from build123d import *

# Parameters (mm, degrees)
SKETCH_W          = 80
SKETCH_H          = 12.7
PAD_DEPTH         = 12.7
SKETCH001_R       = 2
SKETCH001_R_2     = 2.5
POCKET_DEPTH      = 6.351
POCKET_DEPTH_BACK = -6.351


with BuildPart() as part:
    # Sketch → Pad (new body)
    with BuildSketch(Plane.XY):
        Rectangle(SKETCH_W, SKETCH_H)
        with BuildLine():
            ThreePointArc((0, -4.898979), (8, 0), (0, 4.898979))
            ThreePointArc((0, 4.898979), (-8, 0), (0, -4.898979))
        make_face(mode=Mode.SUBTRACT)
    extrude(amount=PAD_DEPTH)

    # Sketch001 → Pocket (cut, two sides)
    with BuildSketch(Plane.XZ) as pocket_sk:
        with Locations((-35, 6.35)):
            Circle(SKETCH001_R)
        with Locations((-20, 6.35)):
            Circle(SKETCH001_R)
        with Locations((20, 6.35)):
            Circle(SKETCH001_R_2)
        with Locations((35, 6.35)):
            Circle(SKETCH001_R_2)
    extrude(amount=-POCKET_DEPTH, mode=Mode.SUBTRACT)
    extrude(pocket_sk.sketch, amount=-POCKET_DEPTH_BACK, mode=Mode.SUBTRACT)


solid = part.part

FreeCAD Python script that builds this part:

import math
import FreeCAD as App
import Part
import Sketcher

V = App.Vector

doc = App.newDocument("Part")
body = doc.addObject("PartDesign::Body", "Body")

# Sketch on XY plane
sketch1 = body.newObject("Sketcher::SketchObject", "Sketch")
sketch1.AttachmentSupport = (doc.getObject("XY_Plane"), [""])
sketch1.MapMode = "FlatFace"
sketch1.addGeometry(Part.LineSegment(V(-40, 6, 0), V(-40, -6, 0)), False)
sketch1.addGeometry(Part.LineSegment(V(-40, -6, 0), V(40, -6, 0)), False)
sketch1.addGeometry(Part.LineSegment(V(40, -6, 0), V(40, 6, 0)), False)
sketch1.addGeometry(Part.LineSegment(V(40, 6, 0), V(-40, 6, 0)), False)
sketch1.addGeometry(Part.ArcOfCircle(Part.Circle(V(3, 0, 0), V(0, 0, 1), 5), math.radians(-117), math.radians(117)), False)
sketch1.addGeometry(Part.ArcOfCircle(Part.Circle(V(-3, 0, 0), V(0, 0, 1), 5), math.radians(63), math.radians(297)), False)
sketch1.addConstraint(Sketcher.Constraint("Coincident", 0, 2, 1, 1))
sketch1.addConstraint(Sketcher.Constraint("Coincident", 1, 2, 2, 1))
sketch1.addConstraint(Sketcher.Constraint("Coincident", 2, 2, 3, 1))
sketch1.addConstraint(Sketcher.Constraint("Coincident", 3, 2, 0, 1))
sketch1.addConstraint(Sketcher.Constraint("Coincident", 4, 1, 5, 2))
sketch1.addConstraint(Sketcher.Constraint("Coincident", 5, 1, 4, 2))
sketch1.addConstraint(Sketcher.Constraint("Vertical", 0))
sketch1.addConstraint(Sketcher.Constraint("Horizontal", 1))
sketch1.addConstraint(Sketcher.Constraint("Vertical", 2))
sketch1.addConstraint(Sketcher.Constraint("Horizontal", 3))
sketch1.addConstraint(Sketcher.Constraint("Equal", 4, 5))
sketch1.addConstraint(Sketcher.Constraint("Symmetric", 4, 3, 5, 3, -1, 1))
sketch1.addConstraint(Sketcher.Constraint("Symmetric", 0, 2, 2, 2, -1, 1))
sketch1.addConstraint(Sketcher.Constraint("PointOnObject", 4, 3, -1))
sketch1.addConstraint(Sketcher.Constraint("Radius", 4, 5.5))
sketch1.addConstraint(Sketcher.Constraint("DistanceX", 1, 1, 1, 2, 80.0))
sketch1.addConstraint(Sketcher.Constraint("DistanceY", 0, 2, 0, 1, 12.7))
sketch1.addConstraint(Sketcher.Constraint("DistanceX", 5, 3, 4, 3, 5.000001))
pad1 = body.newObject("PartDesign::Pad", "Pad")
pad1.Profile = sketch1
pad1.Length = 12.7

# Sketch on XZ plane
sketch2 = body.newObject("Sketcher::SketchObject", "Sketch001")
sketch2.AttachmentSupport = (doc.getObject("XZ_Plane"), [""])
sketch2.MapMode = "FlatFace"
sketch2.addGeometry(Part.Circle(V(-35, 6.3, 0), V(0, 0, 1), 2), False)
sketch2.addGeometry(Part.Circle(V(-20, 6.3, 0), V(0, 0, 1), 2), False)
sketch2.addGeometry(Part.Circle(V(20, 6.3, 0), V(0, 0, 1), 2.5), False)
sketch2.addGeometry(Part.Circle(V(35, 6.3, 0), V(0, 0, 1), 2.5), False)
sketch2.addConstraint(Sketcher.Constraint("Equal", 0, 1))
sketch2.addConstraint(Sketcher.Constraint("Equal", 2, 3))
sketch2.addConstraint(Sketcher.Constraint("Symmetric", 1, 3, 2, 3, -2))
sketch2.addConstraint(Sketcher.Constraint("Symmetric", 0, 3, 3, 3, -2))
sketch2.addConstraint(Sketcher.Constraint("Horizontal", 0, 3, 1, 3))
sketch2.addConstraint(Sketcher.Constraint("Diameter", 0, 4.0))
sketch2.addConstraint(Sketcher.Constraint("Diameter", 2, 5.0))
sketch2.addConstraint(Sketcher.Constraint("DistanceX", 0, 3, -1, 1, 35.0))
sketch2.addConstraint(Sketcher.Constraint("DistanceX", 1, 3, -1, 1, 20.0))
sketch2.addConstraint(Sketcher.Constraint("DistanceY", -1, 1, 0, 3, 6.35))
pocket1 = body.newObject("PartDesign::Pocket", "Pocket")
pocket1.Profile = sketch2
pocket1.Type = "ThroughAll"
pocket1.Midplane = True

doc.recompute()
